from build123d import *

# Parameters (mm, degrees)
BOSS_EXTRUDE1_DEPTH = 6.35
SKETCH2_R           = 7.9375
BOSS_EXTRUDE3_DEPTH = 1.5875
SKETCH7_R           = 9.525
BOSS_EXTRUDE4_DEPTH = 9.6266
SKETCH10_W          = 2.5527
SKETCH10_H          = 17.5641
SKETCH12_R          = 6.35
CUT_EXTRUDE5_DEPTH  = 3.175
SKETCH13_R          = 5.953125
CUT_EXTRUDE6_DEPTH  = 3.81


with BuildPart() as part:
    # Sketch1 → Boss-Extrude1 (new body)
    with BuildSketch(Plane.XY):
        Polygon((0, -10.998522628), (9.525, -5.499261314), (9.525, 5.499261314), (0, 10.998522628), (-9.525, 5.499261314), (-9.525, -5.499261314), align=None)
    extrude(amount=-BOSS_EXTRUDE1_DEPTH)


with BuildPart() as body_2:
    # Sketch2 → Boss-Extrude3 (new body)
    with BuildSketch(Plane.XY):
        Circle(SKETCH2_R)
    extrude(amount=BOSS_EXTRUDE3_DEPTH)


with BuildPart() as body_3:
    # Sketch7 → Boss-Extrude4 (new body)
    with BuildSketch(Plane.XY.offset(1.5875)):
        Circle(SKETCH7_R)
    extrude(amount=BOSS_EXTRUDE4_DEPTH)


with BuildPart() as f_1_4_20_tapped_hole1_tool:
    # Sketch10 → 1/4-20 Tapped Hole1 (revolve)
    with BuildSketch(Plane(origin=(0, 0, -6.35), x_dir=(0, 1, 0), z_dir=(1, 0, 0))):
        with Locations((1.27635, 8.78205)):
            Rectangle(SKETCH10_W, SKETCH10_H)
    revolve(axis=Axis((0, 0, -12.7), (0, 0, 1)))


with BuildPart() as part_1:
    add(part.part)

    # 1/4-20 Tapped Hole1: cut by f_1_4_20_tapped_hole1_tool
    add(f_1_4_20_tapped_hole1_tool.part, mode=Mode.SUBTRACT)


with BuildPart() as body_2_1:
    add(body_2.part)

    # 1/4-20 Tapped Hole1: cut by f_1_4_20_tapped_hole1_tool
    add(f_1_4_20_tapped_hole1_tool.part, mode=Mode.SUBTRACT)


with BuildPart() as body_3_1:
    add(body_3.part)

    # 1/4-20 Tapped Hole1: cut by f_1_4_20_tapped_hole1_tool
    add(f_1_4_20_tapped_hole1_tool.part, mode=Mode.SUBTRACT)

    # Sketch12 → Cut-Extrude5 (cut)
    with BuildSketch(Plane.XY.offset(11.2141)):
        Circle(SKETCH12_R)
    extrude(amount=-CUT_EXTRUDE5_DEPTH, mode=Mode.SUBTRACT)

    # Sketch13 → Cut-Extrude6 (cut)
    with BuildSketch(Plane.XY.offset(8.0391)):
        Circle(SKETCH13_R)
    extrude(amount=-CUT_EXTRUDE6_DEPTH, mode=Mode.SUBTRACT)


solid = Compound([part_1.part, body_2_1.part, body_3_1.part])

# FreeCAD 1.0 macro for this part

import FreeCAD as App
import Part
import Sketcher
Q = App.Units.Quantity

doc = App.newDocument("Part")
body = doc.addObject("PartDesign::Body", "Body")

sketch1 = body.newObject("Sketcher::SketchObject", "Sketch")
sketch1.AttachmentSupport = (doc.getObject("XY_Plane"), [""])
sketch1.MapMode = "FlatFace"
sketch1.addGeometry([
    Part.LineSegment(App.Vector(0, -10.998523, 0), App.Vector(9.525, -5.499261, 0)),
    Part.LineSegment(App.Vector(9.525, -5.499261, 0), App.Vector(9.525, 5.499261, 0)),
    Part.LineSegment(App.Vector(9.525, 5.499261, 0), App.Vector(0, 10.998523, 0)),
    Part.LineSegment(App.Vector(0, 10.998523, 0), App.Vector(-9.525, 5.499261, 0)),
    Part.LineSegment(App.Vector(-9.525, 5.499261, 0), App.Vector(-9.525, -5.499261, 0)),
    Part.LineSegment(App.Vector(-9.525, -5.499261, 0), App.Vector(0, -10.998523, 0)),
], False)
sketch1.addConstraint([
    Sketcher.Constraint("Coincident", 0, 2, 1, 1),
    Sketcher.Constraint("Coincident", 1, 2, 2, 1),
    Sketcher.Constraint("Coincident", 2, 2, 3, 1),
    Sketcher.Constraint("Coincident", 3, 2, 4, 1),
    Sketcher.Constraint("Coincident", 4, 2, 5, 1),
    Sketcher.Constraint("Coincident", 5, 2, 0, 1),
    Sketcher.Constraint("Vertical", 1),
    Sketcher.Constraint("Vertical", 4),
    Sketcher.Constraint("Symmetric", 0, 2, 3, 2, -1, 1),
    Sketcher.Constraint("Symmetric", 2, 2, 5, 2, -1, 1),
    Sketcher.Constraint("PointOnObject", 2, 2, -2),
    Sketcher.Constraint("Parallel", 2, 5),
    Sketcher.Constraint("Horizontal", 1, 2, 3, 2),
    Sketcher.Constraint("Angle", 0, Q("30 deg")),
    Sketcher.Constraint("DistanceX", 3, 2, 1, 2, Q("0.75 in")),
    Sketcher.Constraint("DistanceY", 1, 1, 1, 2, Q("10.998523 mm")),
])
pad1 = body.newObject("PartDesign::Pad", "Pad")
pad1.Profile = sketch1
pad1.Length = Q("0.25 in")
pad1.Reversed = True
body2 = doc.addObject("PartDesign::Body", "Body001")

sketch2 = body2.newObject("Sketcher::SketchObject", "Sketch001")
sketch2.AttachmentSupport = (doc.getObject("XY_Plane001"), [""])
sketch2.MapMode = "FlatFace"
sketch2.addGeometry(Part.Circle(App.Vector(0, 0, 0), App.Vector(0, 0, 1), 7.9375), False)
sketch2.addConstraint([
    Sketcher.Constraint("Coincident", 0, 3, -1, 1),
    Sketcher.Constraint("Diameter", 0, Q("0.625 in")),
])
pad2 = body2.newObject("PartDesign::Pad", "Pad001")
pad2.Profile = sketch2
pad2.Length = Q("0.0625 in")
body3 = doc.addObject("PartDesign::Body", "Body002")

sketch3 = body3.newObject("Sketcher::SketchObject", "Sketch002")
sketch3.AttachmentSupport = (doc.getObject("XY_Plane002"), [""])
sketch3.MapMode = "FlatFace"
sketch3.AttachmentOffset = App.Placement(App.Vector(0, 0, 0.0625 * 25.4), App.Rotation())
sketch3.addGeometry(Part.Circle(App.Vector(0, 0, 0), App.Vector(0, 0, 1), 9.525), False)
sketch3.addConstraint([
    Sketcher.Constraint("Coincident", 0, 3, -1, 1),
    Sketcher.Constraint("Diameter", 0, Q("0.75 in")),
])
pad3 = body3.newObject("PartDesign::Pad", "Pad002")
pad3.Profile = sketch3
pad3.Length = Q("0.379 in")
body4 = doc.addObject("PartDesign::Body", "Body003")

sketch4 = body4.newObject("Sketcher::SketchObject", "Sketch003")
sketch4.AttachmentSupport = (doc.getObject("YZ_Plane003"), [""])
sketch4.MapMode = "FlatFace"
sketch4.addGeometry([
    Part.LineSegment(App.Vector(0, 11.2141, 0), App.Vector(0, -6.35, 0)),
    Part.LineSegment(App.Vector(0, -6.35, 0), App.Vector(2.5527, -6.35, 0)),
    Part.LineSegment(App.Vector(2.5527, -6.35, 0), App.Vector(2.5527, 11.2141, 0)),
    Part.LineSegment(App.Vector(2.5527, 11.2141, 0), App.Vector(0, 11.2141, 0)),
], False)
sketch4.addConstraint([
    Sketcher.Constraint("Coincident", 0, 2, 1, 1),
    Sketcher.Constraint("Coincident", 1, 2, 2, 1),
    Sketcher.Constraint("Coincident", 2, 2, 3, 1),
    Sketcher.Constraint("Coincident", 3, 2, 0, 1),
    Sketcher.Constraint("Vertical", 0),
    Sketcher.Constraint("Horizontal", 1),
    Sketcher.Constraint("Vertical", 2),
    Sketcher.Constraint("Horizontal", 3),
    Sketcher.Constraint("PointOnObject", 0, 2, -2),
    Sketcher.Constraint("DistanceY", 0, 2, -1, 1, Q("0.25 in")),
    Sketcher.Constraint("DistanceX", 1, 1, 1, 2, Q("0.1005 in")),
    Sketcher.Constraint("DistanceY", 0, 2, 0, 1, Q("0.6915 in")),
])
revolution = body4.newObject("PartDesign::Revolution", "Revolution")
revolution.Profile = sketch4
revolution.ReferenceAxis = (sketch4, ["V_Axis"])
revolution.Angle = 360
doc.recompute()

body5 = doc.addObject("PartDesign::Body", "Body004")
body5.BaseFeature = body4
boolean = body.newObject("PartDesign::Boolean", "Boolean")
boolean.Type = "Cut"
boolean.addObjects([body5])
doc.recompute()

body6 = doc.addObject("PartDesign::Body", "Body005")
body6.BaseFeature = body4
boolean2 = body2.newObject("PartDesign::Boolean", "Boolean001")
boolean2.Type = "Cut"
boolean2.addObjects([body6])
doc.recompute()

boolean3 = body3.newObject("PartDesign::Boolean", "Boolean002")
boolean3.Type = "Cut"
boolean3.addObjects([body4])

sketch5 = body3.newObject("Sketcher::SketchObject", "Sketch004")
sketch5.AttachmentSupport = (doc.getObject("XY_Plane002"), [""])
sketch5.MapMode = "FlatFace"
sketch5.AttachmentOffset = App.Placement(App.Vector(0, 0, 0.4415 * 25.4), App.Rotation())
sketch5.addGeometry(Part.Circle(App.Vector(0, 0, 0), App.Vector(0, 0, 1), 6.35), False)
sketch5.addConstraint([
    Sketcher.Constraint("Coincident", 0, 3, -1, 1),
    Sketcher.Constraint("Diameter", 0, Q("0.5 in")),
])
pocket1 = body3.newObject("PartDesign::Pocket", "Pocket")
pocket1.Profile = sketch5
pocket1.Length = Q("0.125 in")

sketch6 = body3.newObject("Sketcher::SketchObject", "Sketch005")
sketch6.AttachmentSupport = (doc.getObject("XY_Plane002"), [""])
sketch6.MapMode = "FlatFace"
sketch6.AttachmentOffset = App.Placement(App.Vector(0, 0, 0.3165 * 25.4), App.Rotation())
sketch6.addGeometry(Part.Circle(App.Vector(0, 0, 0), App.Vector(0, 0, 1), 5.953125), False)
sketch6.addConstraint([
    Sketcher.Constraint("Coincident", 0, 3, -1, 1),
    Sketcher.Constraint("Diameter", 0, Q("0.46875 in")),
])
pocket2 = body3.newObject("PartDesign::Pocket", "Pocket001")
pocket2.Profile = sketch6
pocket2.Length = Q("0.15 in")

doc.recompute()
